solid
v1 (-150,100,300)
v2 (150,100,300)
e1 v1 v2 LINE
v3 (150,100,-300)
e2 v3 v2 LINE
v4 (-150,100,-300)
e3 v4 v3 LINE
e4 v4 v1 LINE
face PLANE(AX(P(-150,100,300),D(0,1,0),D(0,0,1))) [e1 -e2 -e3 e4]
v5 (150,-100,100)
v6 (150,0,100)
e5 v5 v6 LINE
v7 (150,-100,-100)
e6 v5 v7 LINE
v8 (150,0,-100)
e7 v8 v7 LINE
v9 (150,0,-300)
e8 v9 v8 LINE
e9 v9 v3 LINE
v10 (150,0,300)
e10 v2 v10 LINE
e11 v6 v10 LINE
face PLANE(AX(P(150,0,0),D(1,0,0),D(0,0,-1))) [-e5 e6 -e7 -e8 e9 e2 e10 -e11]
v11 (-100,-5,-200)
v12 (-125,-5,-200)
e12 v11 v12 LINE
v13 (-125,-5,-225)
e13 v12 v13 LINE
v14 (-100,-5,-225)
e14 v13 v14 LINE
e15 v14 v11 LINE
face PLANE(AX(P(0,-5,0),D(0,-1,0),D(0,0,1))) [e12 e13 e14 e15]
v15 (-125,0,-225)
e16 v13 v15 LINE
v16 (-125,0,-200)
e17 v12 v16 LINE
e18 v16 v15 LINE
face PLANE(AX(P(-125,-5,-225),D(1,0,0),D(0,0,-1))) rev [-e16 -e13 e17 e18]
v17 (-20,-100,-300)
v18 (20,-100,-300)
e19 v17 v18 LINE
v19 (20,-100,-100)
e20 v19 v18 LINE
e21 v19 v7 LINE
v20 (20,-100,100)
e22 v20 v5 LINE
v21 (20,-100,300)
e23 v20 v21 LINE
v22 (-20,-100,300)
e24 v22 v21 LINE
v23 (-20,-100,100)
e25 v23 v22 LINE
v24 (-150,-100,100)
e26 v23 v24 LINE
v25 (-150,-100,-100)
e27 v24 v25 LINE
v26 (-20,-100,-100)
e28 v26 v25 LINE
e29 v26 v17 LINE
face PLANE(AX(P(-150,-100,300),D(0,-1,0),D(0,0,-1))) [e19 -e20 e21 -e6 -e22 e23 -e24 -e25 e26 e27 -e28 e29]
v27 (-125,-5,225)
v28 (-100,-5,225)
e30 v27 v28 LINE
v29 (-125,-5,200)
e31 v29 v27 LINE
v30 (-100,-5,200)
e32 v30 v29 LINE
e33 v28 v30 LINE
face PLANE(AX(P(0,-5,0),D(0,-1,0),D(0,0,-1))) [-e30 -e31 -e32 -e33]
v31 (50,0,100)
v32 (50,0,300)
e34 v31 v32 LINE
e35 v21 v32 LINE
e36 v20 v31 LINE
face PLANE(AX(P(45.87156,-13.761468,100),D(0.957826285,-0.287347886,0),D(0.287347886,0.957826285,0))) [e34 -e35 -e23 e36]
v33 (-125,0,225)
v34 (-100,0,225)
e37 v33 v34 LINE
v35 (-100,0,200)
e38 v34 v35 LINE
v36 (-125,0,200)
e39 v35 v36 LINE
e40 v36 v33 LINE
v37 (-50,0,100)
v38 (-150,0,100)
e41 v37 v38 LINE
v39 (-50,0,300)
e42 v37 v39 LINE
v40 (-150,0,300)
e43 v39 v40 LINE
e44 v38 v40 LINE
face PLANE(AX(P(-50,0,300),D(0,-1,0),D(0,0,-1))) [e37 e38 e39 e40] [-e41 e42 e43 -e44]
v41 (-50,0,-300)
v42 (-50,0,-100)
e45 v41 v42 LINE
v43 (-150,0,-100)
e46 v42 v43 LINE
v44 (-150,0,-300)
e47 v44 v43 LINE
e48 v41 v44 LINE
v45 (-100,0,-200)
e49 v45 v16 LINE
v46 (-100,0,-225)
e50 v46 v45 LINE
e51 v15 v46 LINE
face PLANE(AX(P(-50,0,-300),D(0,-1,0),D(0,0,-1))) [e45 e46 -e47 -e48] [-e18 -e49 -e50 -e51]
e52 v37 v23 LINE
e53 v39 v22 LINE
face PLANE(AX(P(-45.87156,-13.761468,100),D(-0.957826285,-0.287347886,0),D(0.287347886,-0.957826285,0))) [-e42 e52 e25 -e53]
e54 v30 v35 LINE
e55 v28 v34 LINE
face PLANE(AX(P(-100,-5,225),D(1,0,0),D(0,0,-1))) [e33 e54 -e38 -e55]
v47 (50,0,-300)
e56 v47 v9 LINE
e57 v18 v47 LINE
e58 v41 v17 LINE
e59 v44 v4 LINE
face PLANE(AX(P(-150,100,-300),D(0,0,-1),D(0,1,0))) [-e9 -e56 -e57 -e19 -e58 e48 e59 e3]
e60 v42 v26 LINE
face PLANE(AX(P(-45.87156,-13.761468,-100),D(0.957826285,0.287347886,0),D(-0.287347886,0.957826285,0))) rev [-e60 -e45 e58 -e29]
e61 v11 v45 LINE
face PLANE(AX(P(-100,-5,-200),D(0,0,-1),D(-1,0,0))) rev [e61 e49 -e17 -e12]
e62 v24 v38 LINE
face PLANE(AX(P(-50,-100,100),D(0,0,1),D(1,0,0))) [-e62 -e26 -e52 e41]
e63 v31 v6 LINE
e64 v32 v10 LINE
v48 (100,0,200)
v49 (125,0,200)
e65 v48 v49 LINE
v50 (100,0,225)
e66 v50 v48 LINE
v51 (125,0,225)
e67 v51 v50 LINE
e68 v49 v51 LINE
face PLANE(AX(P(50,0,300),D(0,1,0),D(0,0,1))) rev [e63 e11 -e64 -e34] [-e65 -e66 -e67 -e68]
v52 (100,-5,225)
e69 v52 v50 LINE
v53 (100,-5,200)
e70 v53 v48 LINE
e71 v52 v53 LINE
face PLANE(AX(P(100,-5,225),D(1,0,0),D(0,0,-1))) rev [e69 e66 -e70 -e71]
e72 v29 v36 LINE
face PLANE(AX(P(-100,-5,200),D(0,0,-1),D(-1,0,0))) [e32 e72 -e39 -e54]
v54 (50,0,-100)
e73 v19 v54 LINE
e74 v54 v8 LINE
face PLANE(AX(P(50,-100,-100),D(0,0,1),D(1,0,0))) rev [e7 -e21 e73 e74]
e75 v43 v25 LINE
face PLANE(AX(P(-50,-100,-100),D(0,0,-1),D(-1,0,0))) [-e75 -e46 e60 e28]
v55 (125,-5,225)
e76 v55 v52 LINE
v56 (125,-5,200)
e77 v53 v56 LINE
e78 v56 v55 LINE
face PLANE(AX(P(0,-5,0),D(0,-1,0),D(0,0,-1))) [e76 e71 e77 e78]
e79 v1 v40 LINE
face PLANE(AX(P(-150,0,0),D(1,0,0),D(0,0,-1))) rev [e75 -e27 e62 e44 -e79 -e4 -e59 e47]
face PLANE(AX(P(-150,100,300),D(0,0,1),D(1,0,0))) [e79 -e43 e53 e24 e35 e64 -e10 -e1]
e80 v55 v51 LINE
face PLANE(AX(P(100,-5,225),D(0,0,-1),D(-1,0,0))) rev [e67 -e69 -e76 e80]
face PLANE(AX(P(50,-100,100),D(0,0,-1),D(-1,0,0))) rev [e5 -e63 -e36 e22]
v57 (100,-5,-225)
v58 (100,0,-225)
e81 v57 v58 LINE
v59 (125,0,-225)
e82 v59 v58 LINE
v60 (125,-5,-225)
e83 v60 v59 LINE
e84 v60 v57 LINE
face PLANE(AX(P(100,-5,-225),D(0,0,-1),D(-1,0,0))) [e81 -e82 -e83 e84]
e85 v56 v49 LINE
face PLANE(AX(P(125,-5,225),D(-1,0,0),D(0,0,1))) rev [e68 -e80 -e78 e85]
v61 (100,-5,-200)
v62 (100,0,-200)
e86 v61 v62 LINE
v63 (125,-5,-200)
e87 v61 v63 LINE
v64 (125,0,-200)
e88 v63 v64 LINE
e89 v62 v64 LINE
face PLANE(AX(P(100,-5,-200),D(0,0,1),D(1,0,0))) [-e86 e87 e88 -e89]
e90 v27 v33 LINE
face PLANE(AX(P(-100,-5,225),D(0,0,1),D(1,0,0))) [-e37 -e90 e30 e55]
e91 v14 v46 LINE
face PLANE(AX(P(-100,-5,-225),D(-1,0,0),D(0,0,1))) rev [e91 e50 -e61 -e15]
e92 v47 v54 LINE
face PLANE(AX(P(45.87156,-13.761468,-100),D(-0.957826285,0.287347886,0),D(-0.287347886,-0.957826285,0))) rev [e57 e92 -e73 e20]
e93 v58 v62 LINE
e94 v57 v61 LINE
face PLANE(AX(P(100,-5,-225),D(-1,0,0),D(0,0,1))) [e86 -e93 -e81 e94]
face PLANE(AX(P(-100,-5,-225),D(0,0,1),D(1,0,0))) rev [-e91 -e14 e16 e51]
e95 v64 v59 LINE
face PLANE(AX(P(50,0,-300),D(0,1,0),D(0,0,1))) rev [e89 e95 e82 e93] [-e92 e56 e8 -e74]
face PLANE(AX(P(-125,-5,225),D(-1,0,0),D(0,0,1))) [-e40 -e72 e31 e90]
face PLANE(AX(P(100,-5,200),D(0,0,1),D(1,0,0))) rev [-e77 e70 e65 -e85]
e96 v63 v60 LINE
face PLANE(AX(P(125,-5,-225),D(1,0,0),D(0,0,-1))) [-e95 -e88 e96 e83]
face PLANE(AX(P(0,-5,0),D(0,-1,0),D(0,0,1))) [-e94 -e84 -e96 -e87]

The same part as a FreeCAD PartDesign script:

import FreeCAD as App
import Part
import Sketcher
Q = App.Units.Quantity


def add_polygon(sketch, points):
    """Adds a closed chain of lines whose ends are joined by coincident constraints."""
    first, n = sketch.GeometryCount, len(points)
    for a, b in zip(points, points[1:] + points[:1]):
        sketch.addGeometry(Part.LineSegment(App.Vector(*a, 0), App.Vector(*b, 0)), False)
    for i in range(n):
        sketch.addConstraint(Sketcher.Constraint("Coincident", first + i, 2, first + (i + 1) % n, 1))

doc = App.newDocument("Part")
body = doc.addObject("PartDesign::Body", "Body")

# Sketch on YZ plane
sketch1 = body.newObject("Sketcher::SketchObject", "Sketch")
sketch1.AttachmentSupport = (doc.getObject("YZ_Plane"), [""])
sketch1.MapMode = "FlatFace"
add_polygon(sketch1, [(100, 300), (-100, 300), (-100, -300), (100, -300)])  # lines 0-3
sketch1.addConstraint([
    Sketcher.Constraint("Horizontal", 0),
    Sketcher.Constraint("Vertical", 1),
    Sketcher.Constraint("Horizontal", 2),
    Sketcher.Constraint("Vertical", 3),
    Sketcher.Constraint("Symmetric", 0, 2, 2, 2, -1, 1),
    Sketcher.Constraint("DistanceX", 0, 2, 0, 1, Q("200 mm")),
    Sketcher.Constraint("DistanceY", 1, 2, 1, 1, Q("600 mm")),
])
pad1 = body.newObject("PartDesign::Pad", "Pad")
pad1.Profile = sketch1
pad1.Type = "TwoLengths"
pad1.Length = 150
pad1.Length2 = 150

# Sketch on YZ plane
sketch2 = body.newObject("Sketcher::SketchObject", "Sketch001")
sketch2.AttachmentSupport = (doc.getObject("YZ_Plane"), [""])
sketch2.MapMode = "FlatFace"
sketch2.AttachmentOffset = App.Placement(App.Vector(0, 0, 150), App.Rotation())
add_polygon(sketch2, [(0, 300), (-100, 300), (-100, 100), (0, 100)])  # lines 0-3
add_polygon(sketch2, [(0, -100), (-100, -100), (-100, -300), (0, -300)])  # lines 4-7
sketch2.addConstraint([
    Sketcher.Constraint("Horizontal", 0),
    Sketcher.Constraint("Vertical", 1),
    Sketcher.Constraint("Horizontal", 2),
    Sketcher.Constraint("Vertical", 3),
    Sketcher.Constraint("Horizontal", 4),
    Sketcher.Constraint("Vertical", 5),
    Sketcher.Constraint("Horizontal", 6),
    Sketcher.Constraint("Vertical", 7),
    Sketcher.Constraint("Symmetric", 3, 2, 6, 2, -1, 1),
    Sketcher.Constraint("Symmetric", 1, 2, 4, 2, -1),
    Sketcher.Constraint("PointOnObject", 2, 2, -2),
    Sketcher.Constraint("DistanceX", 0, 2, 0, 1, Q("100 mm")),
    Sketcher.Constraint("DistanceY", 1, 2, 1, 1, Q("200 mm")),
    Sketcher.Constraint("DistanceY", -1, 1, 0, 2, Q("300 mm")),
])
pocket1 = body.newObject("PartDesign::Pocket", "Pocket")
pocket1.Profile = sketch2
pocket1.Length = 100
doc.recompute()

mirrored = body.newObject("PartDesign::Mirrored", "Mirrored")
mirrored.Originals = [pocket1]
mirrored.MirrorPlane = (doc.getObject("YZ_Plane"), [""])
body.Tip = mirrored

# Sketch on XZ plane
sketch3 = body.newObject("Sketcher::SketchObject", "Sketch002")
sketch3.AttachmentSupport = (doc.getObject("XZ_Plane"), [""])
sketch3.MapMode = "FlatFace"
add_polygon(sketch3, [(100, 225), (100, 200), (125, 200), (125, 225)])  # lines 0-3
sketch3.addConstraint([
    Sketcher.Constraint("Vertical", 0),
    Sketcher.Constraint("Horizontal", 1),
    Sketcher.Constraint("Vertical", 2),
    Sketcher.Constraint("Horizontal", 3),
    Sketcher.Constraint("Equal", 3, 0),
    Sketcher.Constraint("DistanceX", 1, 1, 1, 2, Q("25 mm")),
    Sketcher.Constraint("DistanceX", -1, 1, 0, 2, Q("100 mm")),
    Sketcher.Constraint("DistanceY", -1, 1, 0, 2, Q("200 mm")),
])
pad2 = body.newObject("PartDesign::Pad", "Pad001")
pad2.Profile = sketch3
pad2.Length = 5
doc.recompute()

mirrored2 = body.newObject("PartDesign::Mirrored", "Mirrored001")
mirrored2.Originals = [pad2]
mirrored2.MirrorPlane = (doc.getObject("YZ_Plane"), [""])
body.Tip = mirrored2
doc.recompute()

mirrored3 = body.newObject("PartDesign::Mirrored", "Mirrored002")
mirrored3.Originals = [pad2]
mirrored3.MirrorPlane = (doc.getObject("XY_Plane"), [""])
body.Tip = mirrored3

# Sketch on XZ plane
sketch4 = body.newObject("Sketcher::SketchObject", "Sketch003")
sketch4.AttachmentSupport = (doc.getObject("XZ_Plane"), [""])
sketch4.MapMode = "FlatFace"
add_polygon(sketch4, [(-100, -225), (-100, -200), (-125, -200), (-125, -225)])  # lines 0-3
sketch4.addConstraint([
    Sketcher.Constraint("Vertical", 0),
    Sketcher.Constraint("Horizontal", 1),
    Sketcher.Constraint("Vertical", 2),
    Sketcher.Constraint("Horizontal", 3),
    Sketcher.Constraint("Equal", 3, 0),
    Sketcher.Constraint("DistanceX", 1, 2, 1, 1, Q("25 mm")),
    Sketcher.Constraint("DistanceX", 0, 2, -1, 1, Q("100 mm")),
    Sketcher.Constraint("DistanceY", 0, 2, -1, 1, Q("200 mm")),
])
pad3 = body.newObject("PartDesign::Pad", "Pad002")
pad3.Profile = sketch4
pad3.Length = 5

# Sketch on XY plane
sketch5 = body.newObject("Sketcher::SketchObject", "Sketch004")
sketch5.AttachmentSupport = (doc.getObject("XY_Plane"), [""])
sketch5.MapMode = "FlatFace"
sketch5.AttachmentOffset = App.Placement(App.Vector(0, 0, -300), App.Rotation())
add_polygon(sketch5, [(20, -100), (50, 0), (50, -100)])  # lines 0-2
add_polygon(sketch5, [(-50, -100), (-50, 0), (-20, -100)])  # lines 3-5
sketch5.addConstraint([
    Sketcher.Constraint("Vertical", 1),
    Sketcher.Constraint("Horizontal", 2),
    Sketcher.Constraint("Vertical", 3),
    Sketcher.Constraint("Horizontal", 5),
    Sketcher.Constraint("Symmetric", 0, 2, 3, 2, -1, 1),
    Sketcher.Constraint("Symmetric", 2, 2, 4, 2, -2),
    Sketcher.Constraint("PointOnObject", 0, 2, -1),
    Sketcher.Constraint("DistanceX", 2, 2, 2, 1, Q("30 mm")),
    Sketcher.Constraint("DistanceY", 1, 2, 1, 1, Q("100 mm")),
    Sketcher.Constraint("DistanceX", -1, 1, 0, 2, Q("50 mm")),
])
pocket2 = body.newObject("PartDesign::Pocket", "Pocket001")
pocket2.Profile = sketch5
pocket2.Length = 200
pocket2.Reversed = True
doc.recompute()

mirrored4 = body.newObject("PartDesign::Mirrored", "Mirrored003")
mirrored4.Originals = [pocket2]
mirrored4.MirrorPlane = (doc.getObject("XY_Plane"), [""])
body.Tip = mirrored4

doc.recompute()
